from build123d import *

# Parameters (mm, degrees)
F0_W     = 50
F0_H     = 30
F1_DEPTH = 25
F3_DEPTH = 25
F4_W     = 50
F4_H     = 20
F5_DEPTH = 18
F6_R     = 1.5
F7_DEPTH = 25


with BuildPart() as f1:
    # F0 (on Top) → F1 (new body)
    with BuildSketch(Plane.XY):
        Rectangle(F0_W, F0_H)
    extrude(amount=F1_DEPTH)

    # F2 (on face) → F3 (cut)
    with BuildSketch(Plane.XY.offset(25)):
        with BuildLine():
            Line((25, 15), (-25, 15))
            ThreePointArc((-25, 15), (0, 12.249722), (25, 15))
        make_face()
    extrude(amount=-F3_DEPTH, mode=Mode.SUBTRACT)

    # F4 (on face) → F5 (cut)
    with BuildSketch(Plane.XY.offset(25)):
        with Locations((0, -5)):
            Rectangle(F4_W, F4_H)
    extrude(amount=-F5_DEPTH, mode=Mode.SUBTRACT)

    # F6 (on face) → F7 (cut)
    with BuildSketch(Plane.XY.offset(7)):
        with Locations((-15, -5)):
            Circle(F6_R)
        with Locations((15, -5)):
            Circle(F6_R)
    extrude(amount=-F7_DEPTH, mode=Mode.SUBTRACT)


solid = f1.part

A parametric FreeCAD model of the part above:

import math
import FreeCAD as App
import Part
import Sketcher

doc = App.newDocument("Part")
body = doc.addObject("PartDesign::Body", "Body")

sketch1 = body.newObject("Sketcher::SketchObject", "Sketch")
sketch1.AttachmentSupport = (doc.getObject("XY_Plane"), [""])
sketch1.MapMode = "FlatFace"
sketch1.addGeometry(Part.LineSegment(App.Vector(-25, 15, 0), App.Vector(-25, -15, 0)), False)
sketch1.addGeometry(Part.LineSegment(App.Vector(-25, -15, 0), App.Vector(25, -15, 0)), False)
sketch1.addGeometry(Part.LineSegment(App.Vector(25, -15, 0), App.Vector(25, 15, 0)), False)
sketch1.addGeometry(Part.LineSegment(App.Vector(25, 15, 0), App.Vector(-25, 15, 0)), False)
sketch1.addConstraint(Sketcher.Constraint("Coincident", 0, 2, 1, 1))
sketch1.addConstraint(Sketcher.Constraint("Coincident", 1, 2, 2, 1))
sketch1.addConstraint(Sketcher.Constraint("Coincident", 2, 2, 3, 1))
sketch1.addConstraint(Sketcher.Constraint("Coincident", 3, 2, 0, 1))
sketch1.addConstraint(Sketcher.Constraint("Vertical", 0))
sketch1.addConstraint(Sketcher.Constraint("Horizontal", 1))
sketch1.addConstraint(Sketcher.Constraint("Vertical", 2))
sketch1.addConstraint(Sketcher.Constraint("Horizontal", 3))
sketch1.addConstraint(Sketcher.Constraint("Symmetric", 0, 2, 2, 2, -1, 1))
sketch1.addConstraint(Sketcher.Constraint("DistanceX", 1, 1, 1, 2, 50.0))
sketch1.addConstraint(Sketcher.Constraint("DistanceY", 0, 2, 0, 1, 30.0))
pad1 = body.newObject("PartDesign::Pad", "Pad")
pad1.Profile = sketch1
pad1.Length = 25

sketch2 = body.newObject("Sketcher::SketchObject", "Sketch001")
sketch2.AttachmentSupport = (doc.getObject("XY_Plane"), [""])
sketch2.MapMode = "FlatFace"
sketch2.AttachmentOffset = App.Placement(App.Vector(0, 0, 25), App.Rotation())
sketch2.addGeometry(Part.LineSegment(App.Vector(25, 15, 0), App.Vector(-25, 15, 0)), False)
sketch2.addGeometry(Part.ArcOfCircle(Part.Circle(App.Vector(0, 127, 0), App.Vector(0, 0, 1), 115), math.radians(-103), math.radians(-77)), False)
sketch2.addConstraint(Sketcher.Constraint("Coincident", 0, 1, 1, 2))
sketch2.addConstraint(Sketcher.Constraint("Coincident", 1, 1, 0, 2))
sketch2.addConstraint(Sketcher.Constraint("Horizontal", 0))
sketch2.addConstraint(Sketcher.Constraint("PointOnObject", 1, 3, -2))
sketch2.addConstraint(Sketcher.Constraint("DistanceX", 0, 2, 0, 1, 50.0))
sketch2.addConstraint(Sketcher.Constraint("DistanceY", -1, 1, 0, 1, 15.0))
sketch2.addConstraint(Sketcher.Constraint("Radius", 1, 115.000016))
pocket1 = body.newObject("PartDesign::Pocket", "Pocket")
pocket1.Profile = sketch2
pocket1.Length = 25

sketch3 = body.newObject("Sketcher::SketchObject", "Sketch002")
sketch3.AttachmentSupport = (doc.getObject("XY_Plane"), [""])
sketch3.MapMode = "FlatFace"
sketch3.AttachmentOffset = App.Placement(App.Vector(0, 0, 25), App.Rotation())
sketch3.addGeometry(Part.LineSegment(App.Vector(-25, 5, 0), App.Vector(-25, -15, 0)), False)
sketch3.addGeometry(Part.LineSegment(App.Vector(-25, -15, 0), App.Vector(25, -15, 0)), False)
sketch3.addGeometry(Part.LineSegment(App.Vector(25, -15, 0), App.Vector(25, 5, 0)), False)
sketch3.addGeometry(Part.LineSegment(App.Vector(25, 5, 0), App.Vector(-25, 5, 0)), False)
sketch3.addConstraint(Sketcher.Constraint("Coincident", 0, 2, 1, 1))
sketch3.addConstraint(Sketcher.Constraint("Coincident", 1, 2, 2, 1))
sketch3.addConstraint(Sketcher.Constraint("Coincident", 2, 2, 3, 1))
sketch3.addConstraint(Sketcher.Constraint("Coincident", 3, 2, 0, 1))
sketch3.addConstraint(Sketcher.Constraint("Vertical", 0))
sketch3.addConstraint(Sketcher.Constraint("Horizontal", 1))
sketch3.addConstraint(Sketcher.Constraint("Vertical", 2))
sketch3.addConstraint(Sketcher.Constraint("Horizontal", 3))
sketch3.addConstraint(Sketcher.Constraint("DistanceX", 1, 1, 1, 2, 50.0))
sketch3.addConstraint(Sketcher.Constraint("DistanceY", 0, 2, 0, 1, 20.0))
sketch3.addConstraint(Sketcher.Constraint("DistanceX", 0, 2, -1, 1, 25.0))
sketch3.addConstraint(Sketcher.Constraint("DistanceY", 0, 2, -1, 1, 15.0))
pocket2 = body.newObject("PartDesign::Pocket", "Pocket001")
pocket2.Profile = sketch3
pocket2.Length = 18

sketch4 = body.newObject("Sketcher::SketchObject", "Sketch003")
sketch4.AttachmentSupport = (doc.getObject("XY_Plane"), [""])
sketch4.MapMode = "FlatFace"
sketch4.AttachmentOffset = App.Placement(App.Vector(0, 0, 7), App.Rotation())
sketch4.addGeometry(Part.Circle(App.Vector(-15, -5, 0), App.Vector(0, 0, 1), 1.5), False)
sketch4.addGeometry(Part.Circle(App.Vector(15, -5, 0), App.Vector(0, 0, 1), 1.5), False)
sketch4.addConstraint(Sketcher.Constraint("Equal", 0, 1))
sketch4.addConstraint(Sketcher.Constraint("Symmetric", 0, 3, 1, 3, -2))
sketch4.addConstraint(Sketcher.Constraint("Diameter", 0, 3.0))
sketch4.addConstraint(Sketcher.Constraint("DistanceX", 0, 3, -1, 1, 15.0))
sketch4.addConstraint(Sketcher.Constraint("DistanceY", 0, 3, -1, 1, 5.0))
pocket3 = body.newObject("PartDesign::Pocket", "Pocket002")
pocket3.Profile = sketch4
pocket3.Length = 25

doc.recompute()
